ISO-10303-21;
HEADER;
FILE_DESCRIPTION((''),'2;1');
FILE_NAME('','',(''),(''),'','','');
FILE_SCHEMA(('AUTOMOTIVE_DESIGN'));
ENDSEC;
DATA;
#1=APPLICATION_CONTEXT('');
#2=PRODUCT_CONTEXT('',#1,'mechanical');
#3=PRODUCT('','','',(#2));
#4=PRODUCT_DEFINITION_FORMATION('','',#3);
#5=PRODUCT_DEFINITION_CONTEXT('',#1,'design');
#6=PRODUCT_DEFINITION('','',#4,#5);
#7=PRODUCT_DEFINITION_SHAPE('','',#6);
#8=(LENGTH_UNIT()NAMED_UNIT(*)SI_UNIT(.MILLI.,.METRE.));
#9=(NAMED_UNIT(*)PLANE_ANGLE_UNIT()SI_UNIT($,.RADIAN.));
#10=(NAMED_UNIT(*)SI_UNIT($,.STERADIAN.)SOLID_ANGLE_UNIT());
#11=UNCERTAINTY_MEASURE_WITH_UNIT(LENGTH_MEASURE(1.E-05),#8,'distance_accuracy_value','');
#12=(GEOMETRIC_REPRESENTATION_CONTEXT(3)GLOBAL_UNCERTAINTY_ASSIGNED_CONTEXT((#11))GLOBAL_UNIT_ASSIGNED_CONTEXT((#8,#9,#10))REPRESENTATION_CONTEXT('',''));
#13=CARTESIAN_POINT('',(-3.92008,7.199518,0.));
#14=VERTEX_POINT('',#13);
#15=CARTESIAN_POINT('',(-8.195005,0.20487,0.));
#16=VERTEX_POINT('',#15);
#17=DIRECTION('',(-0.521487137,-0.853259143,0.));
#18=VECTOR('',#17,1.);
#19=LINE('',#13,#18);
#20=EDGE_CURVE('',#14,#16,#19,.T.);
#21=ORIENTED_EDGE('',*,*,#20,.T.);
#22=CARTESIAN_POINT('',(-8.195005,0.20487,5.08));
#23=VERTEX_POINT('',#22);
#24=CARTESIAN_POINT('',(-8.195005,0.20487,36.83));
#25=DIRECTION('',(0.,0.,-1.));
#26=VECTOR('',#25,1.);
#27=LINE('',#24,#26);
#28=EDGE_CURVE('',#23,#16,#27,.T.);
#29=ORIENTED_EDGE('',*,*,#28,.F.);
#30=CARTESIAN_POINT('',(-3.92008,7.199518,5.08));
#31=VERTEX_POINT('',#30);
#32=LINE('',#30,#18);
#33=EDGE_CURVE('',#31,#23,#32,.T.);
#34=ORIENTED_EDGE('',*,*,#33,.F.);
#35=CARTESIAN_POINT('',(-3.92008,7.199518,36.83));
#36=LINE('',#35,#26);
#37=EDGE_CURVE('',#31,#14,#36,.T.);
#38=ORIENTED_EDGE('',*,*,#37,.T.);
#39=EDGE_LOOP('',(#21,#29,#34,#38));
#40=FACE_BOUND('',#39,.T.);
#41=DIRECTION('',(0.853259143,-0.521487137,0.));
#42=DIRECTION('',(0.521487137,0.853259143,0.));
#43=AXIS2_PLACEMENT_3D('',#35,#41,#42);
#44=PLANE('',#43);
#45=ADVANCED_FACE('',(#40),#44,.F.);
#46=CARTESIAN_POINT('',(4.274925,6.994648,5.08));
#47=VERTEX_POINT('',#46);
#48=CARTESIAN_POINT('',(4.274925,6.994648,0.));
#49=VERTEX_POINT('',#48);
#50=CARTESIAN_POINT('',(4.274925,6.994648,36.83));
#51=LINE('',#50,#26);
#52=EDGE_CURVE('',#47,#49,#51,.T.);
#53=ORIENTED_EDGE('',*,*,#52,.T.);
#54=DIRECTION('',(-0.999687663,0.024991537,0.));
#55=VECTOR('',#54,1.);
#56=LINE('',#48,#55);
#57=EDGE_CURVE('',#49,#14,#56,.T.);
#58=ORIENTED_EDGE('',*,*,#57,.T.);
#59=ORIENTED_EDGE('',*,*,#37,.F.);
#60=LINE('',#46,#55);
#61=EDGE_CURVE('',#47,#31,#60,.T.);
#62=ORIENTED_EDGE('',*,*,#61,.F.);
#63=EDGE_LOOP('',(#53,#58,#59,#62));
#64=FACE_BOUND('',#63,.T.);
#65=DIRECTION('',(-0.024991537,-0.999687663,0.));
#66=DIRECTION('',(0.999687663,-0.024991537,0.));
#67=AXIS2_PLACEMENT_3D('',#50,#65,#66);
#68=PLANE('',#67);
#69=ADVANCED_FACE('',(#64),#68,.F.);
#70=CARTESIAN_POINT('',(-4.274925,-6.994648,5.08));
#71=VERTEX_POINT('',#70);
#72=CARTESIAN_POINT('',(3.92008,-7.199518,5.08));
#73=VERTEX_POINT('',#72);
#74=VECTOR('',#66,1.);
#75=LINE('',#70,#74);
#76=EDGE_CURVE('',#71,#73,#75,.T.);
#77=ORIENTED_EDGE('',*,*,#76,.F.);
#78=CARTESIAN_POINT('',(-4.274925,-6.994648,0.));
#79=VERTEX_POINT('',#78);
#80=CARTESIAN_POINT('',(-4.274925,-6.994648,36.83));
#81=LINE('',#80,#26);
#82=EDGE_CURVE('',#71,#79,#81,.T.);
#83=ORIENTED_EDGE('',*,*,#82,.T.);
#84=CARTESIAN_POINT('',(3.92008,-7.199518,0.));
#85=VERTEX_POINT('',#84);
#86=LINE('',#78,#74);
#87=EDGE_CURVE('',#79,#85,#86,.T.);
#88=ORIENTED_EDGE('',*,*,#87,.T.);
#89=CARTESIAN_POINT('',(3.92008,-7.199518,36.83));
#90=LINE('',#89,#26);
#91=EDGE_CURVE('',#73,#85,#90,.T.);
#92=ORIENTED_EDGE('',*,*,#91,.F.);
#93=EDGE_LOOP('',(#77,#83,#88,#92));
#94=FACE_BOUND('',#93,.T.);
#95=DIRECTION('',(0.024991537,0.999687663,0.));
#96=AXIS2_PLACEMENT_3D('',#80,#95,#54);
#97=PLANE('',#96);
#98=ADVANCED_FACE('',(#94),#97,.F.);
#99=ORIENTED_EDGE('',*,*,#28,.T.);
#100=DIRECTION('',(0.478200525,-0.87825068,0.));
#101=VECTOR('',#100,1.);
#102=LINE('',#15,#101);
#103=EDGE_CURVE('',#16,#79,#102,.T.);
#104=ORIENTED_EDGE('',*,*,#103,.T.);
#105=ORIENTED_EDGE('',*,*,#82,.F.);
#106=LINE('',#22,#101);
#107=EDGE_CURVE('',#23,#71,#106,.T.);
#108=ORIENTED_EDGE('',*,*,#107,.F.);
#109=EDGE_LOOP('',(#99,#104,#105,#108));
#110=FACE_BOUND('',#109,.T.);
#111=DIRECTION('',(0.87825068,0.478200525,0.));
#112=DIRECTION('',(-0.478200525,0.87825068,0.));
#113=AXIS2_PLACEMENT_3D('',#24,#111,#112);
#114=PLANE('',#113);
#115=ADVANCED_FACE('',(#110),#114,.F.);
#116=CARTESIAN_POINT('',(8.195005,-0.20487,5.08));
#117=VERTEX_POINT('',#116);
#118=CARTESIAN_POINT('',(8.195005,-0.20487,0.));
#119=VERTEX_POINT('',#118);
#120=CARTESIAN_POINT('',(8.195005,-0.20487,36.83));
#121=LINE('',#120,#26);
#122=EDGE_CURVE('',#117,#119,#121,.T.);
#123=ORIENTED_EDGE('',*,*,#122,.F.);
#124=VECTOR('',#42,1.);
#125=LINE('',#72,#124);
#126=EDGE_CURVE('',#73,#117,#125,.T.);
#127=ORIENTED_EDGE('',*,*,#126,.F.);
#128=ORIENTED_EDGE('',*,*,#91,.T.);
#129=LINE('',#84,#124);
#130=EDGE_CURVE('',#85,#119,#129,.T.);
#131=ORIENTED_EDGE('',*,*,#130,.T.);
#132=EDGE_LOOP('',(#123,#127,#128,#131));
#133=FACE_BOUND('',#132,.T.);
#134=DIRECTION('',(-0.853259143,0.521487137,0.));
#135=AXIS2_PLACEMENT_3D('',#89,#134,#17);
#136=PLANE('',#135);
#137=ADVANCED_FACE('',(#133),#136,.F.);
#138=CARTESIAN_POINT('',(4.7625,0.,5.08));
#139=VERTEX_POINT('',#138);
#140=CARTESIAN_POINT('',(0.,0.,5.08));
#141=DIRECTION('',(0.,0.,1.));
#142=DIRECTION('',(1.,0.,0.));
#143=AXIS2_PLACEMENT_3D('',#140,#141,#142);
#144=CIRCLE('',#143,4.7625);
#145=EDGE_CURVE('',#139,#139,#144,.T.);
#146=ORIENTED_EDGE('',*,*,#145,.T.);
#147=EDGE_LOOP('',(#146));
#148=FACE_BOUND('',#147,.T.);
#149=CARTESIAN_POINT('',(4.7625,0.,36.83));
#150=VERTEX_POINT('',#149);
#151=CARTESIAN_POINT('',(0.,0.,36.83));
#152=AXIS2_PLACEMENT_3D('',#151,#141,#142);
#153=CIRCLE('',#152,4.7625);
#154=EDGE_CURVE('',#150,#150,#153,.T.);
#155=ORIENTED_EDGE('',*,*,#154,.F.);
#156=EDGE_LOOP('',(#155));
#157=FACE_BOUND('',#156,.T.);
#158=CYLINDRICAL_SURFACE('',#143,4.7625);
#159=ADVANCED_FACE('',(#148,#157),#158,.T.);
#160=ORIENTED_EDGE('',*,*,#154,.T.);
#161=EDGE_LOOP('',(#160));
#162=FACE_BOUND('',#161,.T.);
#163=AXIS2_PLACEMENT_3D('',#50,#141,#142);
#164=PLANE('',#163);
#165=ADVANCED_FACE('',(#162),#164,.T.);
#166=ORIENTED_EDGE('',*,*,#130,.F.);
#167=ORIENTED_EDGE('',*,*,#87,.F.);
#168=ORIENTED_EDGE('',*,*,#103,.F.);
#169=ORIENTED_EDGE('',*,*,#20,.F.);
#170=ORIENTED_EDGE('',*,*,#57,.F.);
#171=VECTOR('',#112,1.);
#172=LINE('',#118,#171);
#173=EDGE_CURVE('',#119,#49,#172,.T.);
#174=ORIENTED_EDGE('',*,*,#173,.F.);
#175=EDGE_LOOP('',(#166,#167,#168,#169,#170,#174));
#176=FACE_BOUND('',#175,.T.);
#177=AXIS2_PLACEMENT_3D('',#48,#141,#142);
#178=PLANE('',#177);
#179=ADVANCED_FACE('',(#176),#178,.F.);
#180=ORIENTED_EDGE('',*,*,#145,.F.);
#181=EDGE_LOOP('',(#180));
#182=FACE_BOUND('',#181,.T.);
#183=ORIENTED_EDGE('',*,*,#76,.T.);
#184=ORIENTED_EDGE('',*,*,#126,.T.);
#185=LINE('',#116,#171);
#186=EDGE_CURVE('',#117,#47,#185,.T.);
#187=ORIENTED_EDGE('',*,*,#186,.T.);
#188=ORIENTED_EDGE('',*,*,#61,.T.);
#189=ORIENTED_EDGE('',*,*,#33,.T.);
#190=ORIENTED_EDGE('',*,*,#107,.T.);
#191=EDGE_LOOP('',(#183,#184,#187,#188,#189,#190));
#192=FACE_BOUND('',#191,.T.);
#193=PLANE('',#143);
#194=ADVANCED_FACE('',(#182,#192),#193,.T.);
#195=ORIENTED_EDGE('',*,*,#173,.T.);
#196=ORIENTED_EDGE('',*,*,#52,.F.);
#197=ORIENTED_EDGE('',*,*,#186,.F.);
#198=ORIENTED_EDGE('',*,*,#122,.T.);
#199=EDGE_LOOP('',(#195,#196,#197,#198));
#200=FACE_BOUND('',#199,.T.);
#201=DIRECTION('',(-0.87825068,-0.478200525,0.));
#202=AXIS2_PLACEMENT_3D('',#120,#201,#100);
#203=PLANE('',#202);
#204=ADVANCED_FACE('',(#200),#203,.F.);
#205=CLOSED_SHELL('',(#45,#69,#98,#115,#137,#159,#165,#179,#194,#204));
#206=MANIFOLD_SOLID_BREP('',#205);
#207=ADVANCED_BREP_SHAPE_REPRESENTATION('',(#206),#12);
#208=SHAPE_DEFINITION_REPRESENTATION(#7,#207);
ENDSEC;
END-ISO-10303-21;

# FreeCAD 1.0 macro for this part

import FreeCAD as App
import Part
import Sketcher
from FreeCAD import Vector
Q = App.Units.Quantity

doc = App.newDocument("Part")
body = doc.addObject("PartDesign::Body", "Body")

# Sketch on XY plane
sketch1 = body.newObject("Sketcher::SketchObject", "Sketch")
sketch1.AttachmentSupport = (doc.getObject("XY_Plane"), [""])
sketch1.MapMode = "FlatFace"
sketch1.addGeometry(Part.LineSegment(Vector(4, 7, 0), Vector(-4, 7, 0)), False)
sketch1.addGeometry(Part.LineSegment(Vector(-4, 7, 0), Vector(-8, 0, 0)), False)
sketch1.addGeometry(Part.LineSegment(Vector(-8, 0, 0), Vector(-4, -7, 0)), False)
sketch1.addGeometry(Part.LineSegment(Vector(-4, -7, 0), Vector(4, -7, 0)), False)
sketch1.addGeometry(Part.LineSegment(Vector(4, -7, 0), Vector(8, 0, 0)), False)
sketch1.addGeometry(Part.LineSegment(Vector(8, 0, 0), Vector(4, 7, 0)), False)
sketch1.addConstraint(Sketcher.Constraint("Coincident", 0, 2, 1, 1))
sketch1.addConstraint(Sketcher.Constraint("Coincident", 1, 2, 2, 1))
sketch1.addConstraint(Sketcher.Constraint("Coincident", 2, 2, 3, 1))
sketch1.addConstraint(Sketcher.Constraint("Coincident", 3, 2, 4, 1))
sketch1.addConstraint(Sketcher.Constraint("Coincident", 4, 2, 5, 1))
sketch1.addConstraint(Sketcher.Constraint("Coincident", 5, 2, 0, 1))
sketch1.addConstraint(Sketcher.Constraint("Symmetric", 0, 2, 3, 2, -1, 1))
sketch1.addConstraint(Sketcher.Constraint("Symmetric", 1, 2, 4, 2, -1, 1))
sketch1.addConstraint(Sketcher.Constraint("Symmetric", 2, 2, 5, 2, -1, 1))
sketch1.addConstraint(Sketcher.Constraint("Equal", 0, 1))
sketch1.addConstraint(Sketcher.Constraint("Equal", 1, 2))
sketch1.addConstraint(Sketcher.Constraint("DistanceX", 0, 2, -1, 1, Q("3.92008 mm")))
sketch1.addConstraint(Sketcher.Constraint("DistanceY", -1, 1, 1, 2, Q("0.20487 mm")))
sketch1.addConstraint(Sketcher.Constraint("DistanceX", 1, 2, 2, 2, Q("3.92008 mm")))
sketch1.addConstraint(Sketcher.Constraint("DistanceY", 3, 2, 2, 2, Q("0.20487 mm")))
pad1 = body.newObject("PartDesign::Pad", "Pad")
pad1.Profile = sketch1
pad1.Length = Q("1.45 in")

# Sketch on XY plane
sketch2 = body.newObject("Sketcher::SketchObject", "Sketch001")
sketch2.AttachmentSupport = (doc.getObject("XY_Plane"), [""])
sketch2.MapMode = "FlatFace"
sketch2.AttachmentOffset = App.Placement(Vector(0, 0, 1.45 * 25.4), App.Rotation())
sketch2.addGeometry(Part.LineSegment(Vector(-13.5, 12.5, 0), Vector(-13.5, -12.5, 0)), False)
sketch2.addGeometry(Part.LineSegment(Vector(-13.5, -12.5, 0), Vector(13.5, -12.5, 0)), False)
sketch2.addGeometry(Part.LineSegment(Vector(13.5, -12.5, 0), Vector(13.5, 12.5, 0)), False)
sketch2.addGeometry(Part.LineSegment(Vector(13.5, 12.5, 0), Vector(-13.5, 12.5, 0)), False)
sketch2.addGeometry(Part.Circle(Vector(0, 0, 0), Vector(0, 0, 1), 4.8), False)
sketch2.addConstraint(Sketcher.Constraint("Coincident", 0, 2, 1, 1))
sketch2.addConstraint(Sketcher.Constraint("Coincident", 1, 2, 2, 1))
sketch2.addConstraint(Sketcher.Constraint("Coincident", 2, 2, 3, 1))
sketch2.addConstraint(Sketcher.Constraint("Coincident", 3, 2, 0, 1))
sketch2.addConstraint(Sketcher.Constraint("Vertical", 0))
sketch2.addConstraint(Sketcher.Constraint("Horizontal", 1))
sketch2.addConstraint(Sketcher.Constraint("Vertical", 2))
sketch2.addConstraint(Sketcher.Constraint("Horizontal", 3))
sketch2.addConstraint(Sketcher.Constraint("Coincident", 4, 3, -1, 1))
sketch2.addConstraint(Sketcher.Constraint("Symmetric", 0, 2, 2, 2, -1, 1))
sketch2.addConstraint(Sketcher.Constraint("Diameter", 4, Q("0.375 in")))
sketch2.addConstraint(Sketcher.Constraint("DistanceX", 1, 1, 1, 2, Q("26.952 mm")))
sketch2.addConstraint(Sketcher.Constraint("DistanceY", 0, 2, 0, 1, Q("24.962 mm")))
pocket1 = body.newObject("PartDesign::Pocket", "Pocket")
pocket1.Profile = sketch2
pocket1.Length = Q("1.25 in")

doc.recompute()
